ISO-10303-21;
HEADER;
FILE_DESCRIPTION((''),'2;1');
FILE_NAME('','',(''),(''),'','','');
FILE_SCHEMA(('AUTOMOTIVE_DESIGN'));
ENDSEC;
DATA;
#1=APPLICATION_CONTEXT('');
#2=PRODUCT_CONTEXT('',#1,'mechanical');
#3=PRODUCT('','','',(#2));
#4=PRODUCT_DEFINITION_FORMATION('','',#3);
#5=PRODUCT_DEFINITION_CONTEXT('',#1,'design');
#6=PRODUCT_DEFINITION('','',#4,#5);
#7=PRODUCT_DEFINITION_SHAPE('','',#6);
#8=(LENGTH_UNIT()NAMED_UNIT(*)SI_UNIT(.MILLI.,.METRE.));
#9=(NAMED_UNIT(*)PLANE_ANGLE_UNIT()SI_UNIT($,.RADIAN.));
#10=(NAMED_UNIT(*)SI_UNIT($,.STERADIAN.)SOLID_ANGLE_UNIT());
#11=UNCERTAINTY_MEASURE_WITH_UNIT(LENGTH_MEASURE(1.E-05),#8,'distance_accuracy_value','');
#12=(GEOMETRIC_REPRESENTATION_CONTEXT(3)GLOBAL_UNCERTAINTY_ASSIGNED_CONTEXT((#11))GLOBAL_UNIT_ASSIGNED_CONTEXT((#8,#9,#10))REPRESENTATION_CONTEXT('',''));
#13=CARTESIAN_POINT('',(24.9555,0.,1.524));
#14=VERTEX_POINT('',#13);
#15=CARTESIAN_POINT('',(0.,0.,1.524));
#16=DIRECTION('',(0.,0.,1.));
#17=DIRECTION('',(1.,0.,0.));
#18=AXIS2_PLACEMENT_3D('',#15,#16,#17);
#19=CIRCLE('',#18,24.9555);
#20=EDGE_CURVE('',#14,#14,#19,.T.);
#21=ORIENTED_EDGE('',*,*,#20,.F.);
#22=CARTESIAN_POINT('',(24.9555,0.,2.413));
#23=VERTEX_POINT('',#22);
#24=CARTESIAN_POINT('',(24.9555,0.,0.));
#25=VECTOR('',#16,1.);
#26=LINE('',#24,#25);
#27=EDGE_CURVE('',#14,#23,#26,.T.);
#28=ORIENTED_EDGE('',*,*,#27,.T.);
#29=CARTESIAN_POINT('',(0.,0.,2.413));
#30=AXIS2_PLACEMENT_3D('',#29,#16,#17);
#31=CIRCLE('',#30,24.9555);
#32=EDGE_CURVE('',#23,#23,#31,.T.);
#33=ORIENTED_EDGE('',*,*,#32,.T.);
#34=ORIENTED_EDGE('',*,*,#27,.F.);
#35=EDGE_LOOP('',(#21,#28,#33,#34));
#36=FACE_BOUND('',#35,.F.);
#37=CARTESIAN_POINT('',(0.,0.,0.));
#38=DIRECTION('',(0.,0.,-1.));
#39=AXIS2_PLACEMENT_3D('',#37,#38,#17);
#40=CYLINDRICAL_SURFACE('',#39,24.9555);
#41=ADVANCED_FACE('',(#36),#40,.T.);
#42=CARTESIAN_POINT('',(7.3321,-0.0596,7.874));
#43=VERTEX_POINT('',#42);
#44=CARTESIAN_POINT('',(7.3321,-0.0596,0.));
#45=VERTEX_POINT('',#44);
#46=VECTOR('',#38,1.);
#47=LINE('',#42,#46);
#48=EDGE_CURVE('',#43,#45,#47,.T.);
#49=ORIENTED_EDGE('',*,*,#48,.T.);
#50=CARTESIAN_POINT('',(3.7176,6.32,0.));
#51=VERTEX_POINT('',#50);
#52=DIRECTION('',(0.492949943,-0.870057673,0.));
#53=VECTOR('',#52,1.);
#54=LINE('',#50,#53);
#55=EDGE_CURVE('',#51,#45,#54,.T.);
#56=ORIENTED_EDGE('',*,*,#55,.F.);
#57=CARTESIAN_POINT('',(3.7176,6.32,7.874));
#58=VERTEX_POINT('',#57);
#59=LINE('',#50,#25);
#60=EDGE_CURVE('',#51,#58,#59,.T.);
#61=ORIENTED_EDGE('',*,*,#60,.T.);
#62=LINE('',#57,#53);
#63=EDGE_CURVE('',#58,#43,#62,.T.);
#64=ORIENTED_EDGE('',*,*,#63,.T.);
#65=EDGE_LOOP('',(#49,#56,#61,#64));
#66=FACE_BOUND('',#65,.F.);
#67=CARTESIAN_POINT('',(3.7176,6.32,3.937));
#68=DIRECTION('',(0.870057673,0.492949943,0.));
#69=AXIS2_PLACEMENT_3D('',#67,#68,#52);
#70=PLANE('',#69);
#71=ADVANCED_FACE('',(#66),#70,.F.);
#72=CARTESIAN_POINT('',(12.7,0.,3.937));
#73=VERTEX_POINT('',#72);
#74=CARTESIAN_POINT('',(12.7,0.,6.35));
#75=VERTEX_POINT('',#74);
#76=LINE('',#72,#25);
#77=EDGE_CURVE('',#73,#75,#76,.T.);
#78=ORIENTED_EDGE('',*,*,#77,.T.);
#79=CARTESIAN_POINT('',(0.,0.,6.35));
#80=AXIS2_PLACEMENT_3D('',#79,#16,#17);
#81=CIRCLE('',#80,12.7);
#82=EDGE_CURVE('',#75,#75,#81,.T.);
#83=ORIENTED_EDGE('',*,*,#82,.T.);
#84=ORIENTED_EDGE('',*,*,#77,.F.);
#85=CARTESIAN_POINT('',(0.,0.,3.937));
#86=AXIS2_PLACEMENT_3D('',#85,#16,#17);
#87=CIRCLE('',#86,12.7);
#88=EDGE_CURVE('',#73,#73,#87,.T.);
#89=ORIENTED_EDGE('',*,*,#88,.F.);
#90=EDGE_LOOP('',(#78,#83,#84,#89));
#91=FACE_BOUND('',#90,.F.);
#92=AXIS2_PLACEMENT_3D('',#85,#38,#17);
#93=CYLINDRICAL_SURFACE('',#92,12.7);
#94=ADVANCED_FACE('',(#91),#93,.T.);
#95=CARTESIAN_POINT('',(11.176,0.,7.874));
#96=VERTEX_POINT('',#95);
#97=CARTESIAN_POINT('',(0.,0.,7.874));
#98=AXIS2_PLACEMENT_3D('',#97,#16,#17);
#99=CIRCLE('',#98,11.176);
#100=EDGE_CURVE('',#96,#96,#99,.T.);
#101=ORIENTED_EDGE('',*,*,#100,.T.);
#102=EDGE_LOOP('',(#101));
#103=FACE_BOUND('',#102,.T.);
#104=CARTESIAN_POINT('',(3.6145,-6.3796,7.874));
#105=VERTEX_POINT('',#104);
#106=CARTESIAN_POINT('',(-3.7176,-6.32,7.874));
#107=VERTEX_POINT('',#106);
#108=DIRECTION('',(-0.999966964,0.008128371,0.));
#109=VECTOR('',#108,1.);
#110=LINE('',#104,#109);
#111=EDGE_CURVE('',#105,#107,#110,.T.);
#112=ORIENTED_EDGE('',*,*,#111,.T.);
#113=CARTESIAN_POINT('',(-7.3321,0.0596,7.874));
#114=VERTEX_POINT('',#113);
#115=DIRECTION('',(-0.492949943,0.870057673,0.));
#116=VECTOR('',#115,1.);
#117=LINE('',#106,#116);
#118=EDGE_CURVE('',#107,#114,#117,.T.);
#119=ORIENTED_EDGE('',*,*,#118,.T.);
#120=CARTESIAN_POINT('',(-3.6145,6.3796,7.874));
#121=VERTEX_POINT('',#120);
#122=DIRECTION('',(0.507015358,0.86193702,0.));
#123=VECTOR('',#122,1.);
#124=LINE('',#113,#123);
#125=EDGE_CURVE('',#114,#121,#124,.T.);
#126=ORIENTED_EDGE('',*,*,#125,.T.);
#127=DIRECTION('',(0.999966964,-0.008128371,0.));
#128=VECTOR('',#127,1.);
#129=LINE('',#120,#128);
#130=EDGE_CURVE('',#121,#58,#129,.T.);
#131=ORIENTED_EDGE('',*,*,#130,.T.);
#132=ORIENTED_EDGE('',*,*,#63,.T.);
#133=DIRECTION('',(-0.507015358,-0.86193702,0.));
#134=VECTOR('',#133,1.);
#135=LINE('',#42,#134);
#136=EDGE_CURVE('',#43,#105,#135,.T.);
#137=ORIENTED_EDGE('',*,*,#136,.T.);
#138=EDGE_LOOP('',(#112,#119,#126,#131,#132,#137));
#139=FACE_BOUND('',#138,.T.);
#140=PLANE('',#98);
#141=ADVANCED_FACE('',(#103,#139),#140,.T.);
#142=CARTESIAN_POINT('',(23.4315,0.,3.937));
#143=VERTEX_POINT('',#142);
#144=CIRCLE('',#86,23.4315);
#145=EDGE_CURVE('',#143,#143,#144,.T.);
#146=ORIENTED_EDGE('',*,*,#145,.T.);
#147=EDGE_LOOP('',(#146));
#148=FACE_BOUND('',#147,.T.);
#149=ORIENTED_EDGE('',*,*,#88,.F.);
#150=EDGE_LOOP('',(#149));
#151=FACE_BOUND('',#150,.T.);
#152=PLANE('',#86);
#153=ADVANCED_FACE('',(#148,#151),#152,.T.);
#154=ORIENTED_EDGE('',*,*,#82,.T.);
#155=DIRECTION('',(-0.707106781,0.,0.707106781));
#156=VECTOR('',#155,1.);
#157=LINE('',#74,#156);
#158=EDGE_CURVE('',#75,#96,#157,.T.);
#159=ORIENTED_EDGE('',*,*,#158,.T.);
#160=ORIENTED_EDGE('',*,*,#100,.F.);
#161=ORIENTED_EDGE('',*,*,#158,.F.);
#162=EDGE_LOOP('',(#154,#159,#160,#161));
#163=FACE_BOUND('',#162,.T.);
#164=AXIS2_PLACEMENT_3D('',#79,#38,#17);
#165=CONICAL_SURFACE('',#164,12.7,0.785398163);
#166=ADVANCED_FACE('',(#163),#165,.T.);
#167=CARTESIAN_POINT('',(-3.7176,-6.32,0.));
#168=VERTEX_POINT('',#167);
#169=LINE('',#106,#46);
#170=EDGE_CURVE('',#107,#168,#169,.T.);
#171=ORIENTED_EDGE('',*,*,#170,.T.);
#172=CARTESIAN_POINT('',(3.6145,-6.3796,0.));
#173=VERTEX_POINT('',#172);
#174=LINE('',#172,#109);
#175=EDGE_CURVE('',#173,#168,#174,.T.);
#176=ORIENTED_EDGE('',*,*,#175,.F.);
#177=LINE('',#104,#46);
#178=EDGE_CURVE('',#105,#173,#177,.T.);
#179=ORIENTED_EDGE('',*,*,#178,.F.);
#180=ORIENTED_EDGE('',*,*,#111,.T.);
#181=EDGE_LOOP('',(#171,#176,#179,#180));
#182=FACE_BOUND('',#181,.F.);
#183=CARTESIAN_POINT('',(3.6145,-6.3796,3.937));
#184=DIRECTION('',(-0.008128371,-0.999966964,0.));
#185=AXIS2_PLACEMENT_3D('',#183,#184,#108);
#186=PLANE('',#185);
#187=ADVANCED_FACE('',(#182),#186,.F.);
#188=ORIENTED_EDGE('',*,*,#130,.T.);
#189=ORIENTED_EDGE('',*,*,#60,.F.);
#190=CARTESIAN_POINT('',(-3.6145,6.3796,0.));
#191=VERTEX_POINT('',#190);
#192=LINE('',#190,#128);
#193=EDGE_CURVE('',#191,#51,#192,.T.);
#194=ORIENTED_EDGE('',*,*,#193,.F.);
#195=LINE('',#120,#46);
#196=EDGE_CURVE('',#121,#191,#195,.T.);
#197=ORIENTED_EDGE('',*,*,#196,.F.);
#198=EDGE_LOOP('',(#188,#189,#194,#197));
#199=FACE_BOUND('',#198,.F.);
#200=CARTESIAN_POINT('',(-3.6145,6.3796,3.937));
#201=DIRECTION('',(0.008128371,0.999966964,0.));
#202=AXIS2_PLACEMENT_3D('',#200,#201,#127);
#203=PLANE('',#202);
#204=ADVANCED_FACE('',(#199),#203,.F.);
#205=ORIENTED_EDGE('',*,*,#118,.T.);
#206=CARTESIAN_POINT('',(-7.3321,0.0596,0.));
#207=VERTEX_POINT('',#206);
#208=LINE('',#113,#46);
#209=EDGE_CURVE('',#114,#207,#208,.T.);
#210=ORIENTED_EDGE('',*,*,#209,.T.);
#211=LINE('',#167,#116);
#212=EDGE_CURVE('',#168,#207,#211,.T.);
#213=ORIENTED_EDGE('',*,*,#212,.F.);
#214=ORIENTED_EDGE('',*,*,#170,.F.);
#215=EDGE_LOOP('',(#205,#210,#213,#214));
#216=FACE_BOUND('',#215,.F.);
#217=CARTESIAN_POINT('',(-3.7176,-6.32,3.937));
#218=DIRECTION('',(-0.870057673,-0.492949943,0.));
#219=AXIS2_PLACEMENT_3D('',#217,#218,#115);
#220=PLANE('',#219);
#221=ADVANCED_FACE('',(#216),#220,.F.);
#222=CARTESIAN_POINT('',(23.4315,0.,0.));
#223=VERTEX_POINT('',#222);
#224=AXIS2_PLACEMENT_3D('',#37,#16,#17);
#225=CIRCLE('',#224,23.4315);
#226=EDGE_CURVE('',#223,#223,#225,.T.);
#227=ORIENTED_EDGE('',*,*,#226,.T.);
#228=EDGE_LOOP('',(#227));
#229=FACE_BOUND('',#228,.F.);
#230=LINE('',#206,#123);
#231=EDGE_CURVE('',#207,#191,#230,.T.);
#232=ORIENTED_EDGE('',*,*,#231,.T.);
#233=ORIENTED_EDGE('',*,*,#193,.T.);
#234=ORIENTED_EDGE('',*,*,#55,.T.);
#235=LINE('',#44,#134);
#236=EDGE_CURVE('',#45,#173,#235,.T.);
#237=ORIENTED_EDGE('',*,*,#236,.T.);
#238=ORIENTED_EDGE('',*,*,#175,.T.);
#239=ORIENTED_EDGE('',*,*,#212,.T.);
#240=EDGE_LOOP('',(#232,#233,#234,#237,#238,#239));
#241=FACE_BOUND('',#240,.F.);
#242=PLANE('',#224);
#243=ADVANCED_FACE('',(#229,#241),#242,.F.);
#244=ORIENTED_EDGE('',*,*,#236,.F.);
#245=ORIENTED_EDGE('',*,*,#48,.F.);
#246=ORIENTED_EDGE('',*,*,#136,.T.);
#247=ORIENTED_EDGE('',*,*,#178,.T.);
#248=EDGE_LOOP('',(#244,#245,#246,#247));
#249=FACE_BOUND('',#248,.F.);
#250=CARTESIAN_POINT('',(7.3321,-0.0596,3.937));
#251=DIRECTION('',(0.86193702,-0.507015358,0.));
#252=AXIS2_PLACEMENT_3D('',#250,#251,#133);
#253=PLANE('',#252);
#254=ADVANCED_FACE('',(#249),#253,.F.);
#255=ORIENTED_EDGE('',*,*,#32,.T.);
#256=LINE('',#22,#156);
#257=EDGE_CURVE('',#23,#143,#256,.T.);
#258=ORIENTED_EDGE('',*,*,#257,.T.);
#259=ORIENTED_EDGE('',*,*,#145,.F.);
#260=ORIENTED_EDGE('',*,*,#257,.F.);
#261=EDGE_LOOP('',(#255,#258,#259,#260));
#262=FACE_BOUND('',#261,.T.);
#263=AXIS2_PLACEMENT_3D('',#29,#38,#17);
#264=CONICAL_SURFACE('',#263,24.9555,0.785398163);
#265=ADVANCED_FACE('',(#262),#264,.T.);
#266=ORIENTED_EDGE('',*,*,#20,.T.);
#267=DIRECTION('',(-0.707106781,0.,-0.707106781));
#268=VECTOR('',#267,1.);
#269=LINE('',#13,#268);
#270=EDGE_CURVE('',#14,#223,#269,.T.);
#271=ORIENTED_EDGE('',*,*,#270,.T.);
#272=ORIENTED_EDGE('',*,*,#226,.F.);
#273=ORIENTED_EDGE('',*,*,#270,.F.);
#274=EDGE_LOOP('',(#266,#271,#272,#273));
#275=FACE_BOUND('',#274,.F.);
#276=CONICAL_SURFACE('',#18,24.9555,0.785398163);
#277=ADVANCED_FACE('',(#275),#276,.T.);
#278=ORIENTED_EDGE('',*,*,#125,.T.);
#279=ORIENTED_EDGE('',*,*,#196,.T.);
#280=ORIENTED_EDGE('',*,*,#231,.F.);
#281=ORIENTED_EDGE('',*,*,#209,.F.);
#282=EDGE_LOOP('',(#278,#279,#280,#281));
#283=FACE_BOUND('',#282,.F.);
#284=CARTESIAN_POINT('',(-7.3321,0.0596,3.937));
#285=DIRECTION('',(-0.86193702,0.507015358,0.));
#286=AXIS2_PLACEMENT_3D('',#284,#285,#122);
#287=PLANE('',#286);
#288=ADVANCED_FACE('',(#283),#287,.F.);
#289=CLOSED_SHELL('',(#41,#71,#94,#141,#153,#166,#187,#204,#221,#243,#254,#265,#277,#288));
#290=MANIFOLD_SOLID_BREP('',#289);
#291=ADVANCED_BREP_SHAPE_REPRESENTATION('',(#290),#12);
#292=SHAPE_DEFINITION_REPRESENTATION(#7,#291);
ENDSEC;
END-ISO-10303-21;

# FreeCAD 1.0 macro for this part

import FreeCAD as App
import Part
import Sketcher
Q = App.Units.Quantity


def edges_at(feature, points):
    """Names of the edges that pass closest to the given points."""
    edges = feature.Shape.Edges
    near = lambda p: min(range(len(edges)), key=lambda i: edges[i].distToShape(Part.Vertex(*p))[0])
    return sorted({f"Edge{near(p) + 1}" for p in points})

doc = App.newDocument("Part")
body = doc.addObject("PartDesign::Body", "Body")

# Sketch on XY plane
sketch1 = body.newObject("Sketcher::SketchObject", "Sketch")
sketch1.AttachmentSupport = (doc.getObject("XY_Plane"), [""])
sketch1.MapMode = "FlatFace"
sketch1.addGeometry(Part.Circle(App.Vector(0, 0, 0), App.Vector(0, 0, 1), 24.9555), False)
sketch1.addGeometry(Part.LineSegment(App.Vector(-3.6145, 6.3796, 0), App.Vector(3.7176, 6.32, 0)), False)
sketch1.addGeometry(Part.LineSegment(App.Vector(3.7176, 6.32, 0), App.Vector(7.3321, -0.0596, 0)), False)
sketch1.addGeometry(Part.LineSegment(App.Vector(7.3321, -0.0596, 0), App.Vector(3.6145, -6.3796, 0)), False)
sketch1.addGeometry(Part.LineSegment(App.Vector(3.6145, -6.3796, 0), App.Vector(-3.7176, -6.32, 0)), False)
sketch1.addGeometry(Part.LineSegment(App.Vector(-3.7176, -6.32, 0), App.Vector(-7.3321, 0.0596, 0)), False)
sketch1.addGeometry(Part.LineSegment(App.Vector(-7.3321, 0.0596, 0), App.Vector(-3.6145, 6.3796, 0)), False)
sketch1.addConstraint(Sketcher.Constraint("Coincident", 1, 2, 2, 1))
sketch1.addConstraint(Sketcher.Constraint("Coincident", 2, 2, 3, 1))
sketch1.addConstraint(Sketcher.Constraint("Coincident", 3, 2, 4, 1))
sketch1.addConstraint(Sketcher.Constraint("Coincident", 4, 2, 5, 1))
sketch1.addConstraint(Sketcher.Constraint("Coincident", 5, 2, 6, 1))
sketch1.addConstraint(Sketcher.Constraint("Coincident", 6, 2, 1, 1))
sketch1.addConstraint(Sketcher.Constraint("Coincident", 0, 3, -1, 1))
sketch1.addConstraint(Sketcher.Constraint("Symmetric", 1, 2, 4, 2, -1, 1))
sketch1.addConstraint(Sketcher.Constraint("Symmetric", 2, 2, 5, 2, -1, 1))
sketch1.addConstraint(Sketcher.Constraint("Symmetric", 3, 2, 6, 2, -1, 1))
sketch1.addConstraint(Sketcher.Constraint("Equal", 1, 2))
sketch1.addConstraint(Sketcher.Constraint("Equal", 2, 3))
sketch1.addConstraint(Sketcher.Constraint("Diameter", 0, Q("1.965 in")))
sketch1.addConstraint(Sketcher.Constraint("DistanceX", -1, 1, 3, 2, Q("0.1423 in")))
sketch1.addConstraint(Sketcher.Constraint("DistanceX", 1, 2, 2, 2, Q("0.1423 in")))
sketch1.addConstraint(Sketcher.Constraint("DistanceY", 3, 2, 5, 2, Q("0.2535 in")))
sketch1.addConstraint(Sketcher.Constraint("DistanceY", 2, 2, 5, 2, Q("0.0047 in")))
pad1 = body.newObject("PartDesign::Pad", "Pad")
pad1.Profile = sketch1
pad1.Length = Q("0.155 in")
doc.recompute()

chamfer = body.newObject("PartDesign::Chamfer", "Chamfer")
chamfer.Base = (pad1, edges_at(pad1, [(-24.956, 0, 3.937)]))
chamfer.Size = Q("0.06 in")
doc.recompute()

chamfer2 = body.newObject("PartDesign::Chamfer", "Chamfer001")
chamfer2.Base = (chamfer, edges_at(chamfer, [(-24.956, 0, 0)]))
chamfer2.Size = Q("0.06 in")

# Sketch on XY plane
sketch2 = body.newObject("Sketcher::SketchObject", "Sketch001")
sketch2.AttachmentSupport = (doc.getObject("XY_Plane"), [""])
sketch2.MapMode = "FlatFace"
sketch2.AttachmentOffset = App.Placement(App.Vector(0, 0, 0.155 * 25.4), App.Rotation())
sketch2.addGeometry(Part.Circle(App.Vector(0, 0, 0), App.Vector(0, 0, 1), 12.7), False)
sketch2.addGeometry(Part.LineSegment(App.Vector(-3.6145, 6.3796, 0), App.Vector(3.7176, 6.32, 0)), False)
sketch2.addGeometry(Part.LineSegment(App.Vector(3.7176, 6.32, 0), App.Vector(7.3321, -0.0596, 0)), False)
sketch2.addGeometry(Part.LineSegment(App.Vector(7.3321, -0.0596, 0), App.Vector(3.6145, -6.3796, 0)), False)
sketch2.addGeometry(Part.LineSegment(App.Vector(3.6145, -6.3796, 0), App.Vector(-3.7176, -6.32, 0)), False)
sketch2.addGeometry(Part.LineSegment(App.Vector(-3.7176, -6.32, 0), App.Vector(-7.3321, 0.0596, 0)), False)
sketch2.addGeometry(Part.LineSegment(App.Vector(-7.3321, 0.0596, 0), App.Vector(-3.6145, 6.3796, 0)), False)
sketch2.addConstraint(Sketcher.Constraint("Coincident", 1, 2, 2, 1))
sketch2.addConstraint(Sketcher.Constraint("Coincident", 2, 2, 3, 1))
sketch2.addConstraint(Sketcher.Constraint("Coincident", 3, 2, 4, 1))
sketch2.addConstraint(Sketcher.Constraint("Coincident", 4, 2, 5, 1))
sketch2.addConstraint(Sketcher.Constraint("Coincident", 5, 2, 6, 1))
sketch2.addConstraint(Sketcher.Constraint("Coincident", 6, 2, 1, 1))
sketch2.addConstraint(Sketcher.Constraint("Coincident", 0, 3, -1, 1))
sketch2.addConstraint(Sketcher.Constraint("Symmetric", 1, 2, 4, 2, -1, 1))
sketch2.addConstraint(Sketcher.Constraint("Symmetric", 2, 2, 5, 2, -1, 1))
sketch2.addConstraint(Sketcher.Constraint("Symmetric", 3, 2, 6, 2, -1, 1))
sketch2.addConstraint(Sketcher.Constraint("Equal", 1, 2))
sketch2.addConstraint(Sketcher.Constraint("Equal", 2, 3))
sketch2.addConstraint(Sketcher.Constraint("Diameter", 0, Q("1 in")))
sketch2.addConstraint(Sketcher.Constraint("DistanceX", -1, 1, 3, 2, Q("0.1423 in")))
sketch2.addConstraint(Sketcher.Constraint("DistanceX", 1, 2, 2, 2, Q("0.1423 in")))
sketch2.addConstraint(Sketcher.Constraint("DistanceY", 3, 2, 5, 2, Q("0.2535 in")))
sketch2.addConstraint(Sketcher.Constraint("DistanceY", 2, 2, 5, 2, Q("0.0047 in")))
pad2 = body.newObject("PartDesign::Pad", "Pad001")
pad2.Profile = sketch2
pad2.Length = Q("0.155 in")
doc.recompute()

chamfer3 = body.newObject("PartDesign::Chamfer", "Chamfer002")
chamfer3.Base = (pad2, edges_at(pad2, [(-12.7, 0, 7.874)]))
chamfer3.Size = Q("0.06 in")

doc.recompute()
